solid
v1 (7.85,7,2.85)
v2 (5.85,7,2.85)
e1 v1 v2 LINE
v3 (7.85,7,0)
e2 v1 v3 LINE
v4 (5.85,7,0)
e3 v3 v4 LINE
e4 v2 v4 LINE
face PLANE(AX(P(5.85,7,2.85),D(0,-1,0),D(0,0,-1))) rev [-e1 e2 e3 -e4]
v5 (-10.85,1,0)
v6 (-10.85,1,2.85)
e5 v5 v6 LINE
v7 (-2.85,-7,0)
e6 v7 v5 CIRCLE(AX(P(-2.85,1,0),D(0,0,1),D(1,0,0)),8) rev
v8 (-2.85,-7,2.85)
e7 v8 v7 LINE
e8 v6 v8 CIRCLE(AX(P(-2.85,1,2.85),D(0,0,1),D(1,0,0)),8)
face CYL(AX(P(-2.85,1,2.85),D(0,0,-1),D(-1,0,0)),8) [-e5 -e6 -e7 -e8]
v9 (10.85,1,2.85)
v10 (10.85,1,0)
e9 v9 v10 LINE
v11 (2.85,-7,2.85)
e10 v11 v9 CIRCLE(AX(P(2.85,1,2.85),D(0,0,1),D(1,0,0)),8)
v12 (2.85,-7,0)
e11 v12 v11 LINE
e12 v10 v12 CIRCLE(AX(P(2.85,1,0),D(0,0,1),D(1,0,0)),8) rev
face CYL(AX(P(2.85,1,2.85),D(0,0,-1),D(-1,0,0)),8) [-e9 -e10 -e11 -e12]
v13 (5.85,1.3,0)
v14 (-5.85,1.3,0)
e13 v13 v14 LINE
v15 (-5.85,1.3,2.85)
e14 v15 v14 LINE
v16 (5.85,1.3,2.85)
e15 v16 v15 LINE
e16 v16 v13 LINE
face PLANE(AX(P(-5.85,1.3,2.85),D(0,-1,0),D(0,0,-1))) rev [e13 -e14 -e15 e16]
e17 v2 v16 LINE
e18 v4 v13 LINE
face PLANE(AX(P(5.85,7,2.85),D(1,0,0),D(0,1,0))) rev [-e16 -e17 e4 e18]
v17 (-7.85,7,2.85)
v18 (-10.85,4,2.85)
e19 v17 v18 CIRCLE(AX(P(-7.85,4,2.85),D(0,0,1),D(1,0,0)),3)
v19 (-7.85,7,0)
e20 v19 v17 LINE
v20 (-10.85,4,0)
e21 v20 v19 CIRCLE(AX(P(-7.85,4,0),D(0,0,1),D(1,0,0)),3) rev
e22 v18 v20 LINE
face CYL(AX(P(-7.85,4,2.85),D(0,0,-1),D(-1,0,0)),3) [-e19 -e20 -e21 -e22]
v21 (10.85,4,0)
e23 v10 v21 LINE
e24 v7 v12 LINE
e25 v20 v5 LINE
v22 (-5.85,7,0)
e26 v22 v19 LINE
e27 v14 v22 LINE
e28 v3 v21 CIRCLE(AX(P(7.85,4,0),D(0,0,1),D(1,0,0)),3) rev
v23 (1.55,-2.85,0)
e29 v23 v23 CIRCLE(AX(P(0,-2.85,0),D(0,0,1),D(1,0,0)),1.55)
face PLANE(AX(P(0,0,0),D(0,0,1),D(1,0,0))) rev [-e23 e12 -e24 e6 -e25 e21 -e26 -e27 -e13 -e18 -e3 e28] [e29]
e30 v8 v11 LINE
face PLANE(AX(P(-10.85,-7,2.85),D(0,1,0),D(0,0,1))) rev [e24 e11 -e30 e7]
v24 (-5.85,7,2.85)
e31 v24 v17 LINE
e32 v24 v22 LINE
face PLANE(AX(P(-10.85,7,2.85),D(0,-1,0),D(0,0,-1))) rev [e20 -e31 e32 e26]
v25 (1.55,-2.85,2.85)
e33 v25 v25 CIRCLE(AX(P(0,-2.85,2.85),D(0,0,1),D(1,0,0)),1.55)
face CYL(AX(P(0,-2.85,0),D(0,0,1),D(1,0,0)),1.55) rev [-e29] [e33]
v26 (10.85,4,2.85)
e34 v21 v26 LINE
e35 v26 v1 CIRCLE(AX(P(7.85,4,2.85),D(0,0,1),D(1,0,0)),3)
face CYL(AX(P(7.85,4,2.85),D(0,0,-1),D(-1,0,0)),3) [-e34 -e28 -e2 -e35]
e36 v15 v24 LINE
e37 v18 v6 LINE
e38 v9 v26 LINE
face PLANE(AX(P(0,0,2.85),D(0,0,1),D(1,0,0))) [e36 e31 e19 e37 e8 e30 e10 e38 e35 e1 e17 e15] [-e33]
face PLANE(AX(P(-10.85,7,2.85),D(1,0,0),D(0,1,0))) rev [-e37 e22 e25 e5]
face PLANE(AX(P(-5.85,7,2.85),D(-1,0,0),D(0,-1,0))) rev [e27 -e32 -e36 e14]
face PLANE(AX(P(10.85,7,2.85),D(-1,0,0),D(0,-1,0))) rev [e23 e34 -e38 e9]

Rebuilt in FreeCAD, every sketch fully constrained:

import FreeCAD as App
import Part
import Sketcher
from FreeCAD import Vector
Q = App.Units.Quantity


def edges_at(feature, points):
    """Names of the edges that pass closest to the given points."""
    edges = feature.Shape.Edges
    near = lambda p: min(range(len(edges)), key=lambda i: edges[i].distToShape(Part.Vertex(*p))[0])
    return sorted({f"Edge{near(p) + 1}" for p in points})


def add_polygon(sketch, points):
    """Adds a closed chain of lines whose ends are joined by coincident constraints."""
    first, n = sketch.GeometryCount, len(points)
    for a, b in zip(points, points[1:] + points[:1]):
        sketch.addGeometry(Part.LineSegment(App.Vector(*a, 0), App.Vector(*b, 0)), False)
    for i in range(n):
        sketch.addConstraint(Sketcher.Constraint("Coincident", first + i, 2, first + (i + 1) % n, 1))

doc = App.newDocument("Part")
body = doc.addObject("PartDesign::Body", "Body")

sketch1 = body.newObject("Sketcher::SketchObject", "Sketch")
sketch1.AttachmentSupport = (doc.getObject("XY_Plane"), [""])
sketch1.MapMode = "FlatFace"
add_polygon(sketch1, [(11, 7), (6, 7), (6, 1), (-6, 1), (-6, 7), (-11, 7), (-11, -7), (11, -7)])
sketch1.addConstraint([
    Sketcher.Constraint("Horizontal", 0),
    Sketcher.Constraint("Vertical", 1),
    Sketcher.Constraint("Horizontal", 2),
    Sketcher.Constraint("Vertical", 3),
    Sketcher.Constraint("Horizontal", 4),
    Sketcher.Constraint("Vertical", 5),
    Sketcher.Constraint("Horizontal", 6),
    Sketcher.Constraint("Vertical", 7),
    Sketcher.Constraint("Symmetric", 4, 2, 6, 2, -1, 1),
    Sketcher.Constraint("Symmetric", 0, 2, 3, 2, -2),
    Sketcher.Constraint("DistanceX", 0, 2, 0, 1, Q("5 mm")),
    Sketcher.Constraint("DistanceY", 5, 2, 5, 1, Q("14 mm")),
    Sketcher.Constraint("DistanceX", 2, 2, 2, 1, Q("11.7 mm")),
    Sketcher.Constraint("DistanceY", 1, 2, 1, 1, Q("5.7 mm")),
])
pad1 = body.newObject("PartDesign::Pad", "Pad")
pad1.Profile = sketch1
pad1.Length = 2.85

sketch2 = body.newObject("Sketcher::SketchObject", "Sketch001")
sketch2.AttachmentSupport = (doc.getObject("XY_Plane"), [""])
sketch2.MapMode = "FlatFace"
sketch2.AttachmentOffset = App.Placement(Vector(0, 0, 2.85), App.Rotation())
sketch2.addGeometry(Part.Circle(Vector(0, -2.9, 0), Vector(0, 0, 1), 1.6), False)
sketch2.addConstraint([
    Sketcher.Constraint("PointOnObject", 0, 3, -2),
    Sketcher.Constraint("Diameter", 0, Q("3.1 mm")),
    Sketcher.Constraint("DistanceY", 0, 3, -1, 1, Q("2.85 mm")),
])
pocket1 = body.newObject("PartDesign::Pocket", "Pocket")
pocket1.Profile = sketch2
pocket1.Type = "ThroughAll"
doc.recompute()

fillet = body.newObject("PartDesign::Fillet", "Fillet")
fillet.Base = (pocket1, edges_at(pocket1, [(10.85, -7, 1.425), (-10.85, -7, 1.425)]))
fillet.Radius = 8
doc.recompute()

fillet2 = body.newObject("PartDesign::Fillet", "Fillet001")
fillet2.Base = (fillet, edges_at(fillet, [(-10.85, 7, 1.425), (10.85, 7, 1.425)]))
fillet2.Radius = 3

doc.recompute()
